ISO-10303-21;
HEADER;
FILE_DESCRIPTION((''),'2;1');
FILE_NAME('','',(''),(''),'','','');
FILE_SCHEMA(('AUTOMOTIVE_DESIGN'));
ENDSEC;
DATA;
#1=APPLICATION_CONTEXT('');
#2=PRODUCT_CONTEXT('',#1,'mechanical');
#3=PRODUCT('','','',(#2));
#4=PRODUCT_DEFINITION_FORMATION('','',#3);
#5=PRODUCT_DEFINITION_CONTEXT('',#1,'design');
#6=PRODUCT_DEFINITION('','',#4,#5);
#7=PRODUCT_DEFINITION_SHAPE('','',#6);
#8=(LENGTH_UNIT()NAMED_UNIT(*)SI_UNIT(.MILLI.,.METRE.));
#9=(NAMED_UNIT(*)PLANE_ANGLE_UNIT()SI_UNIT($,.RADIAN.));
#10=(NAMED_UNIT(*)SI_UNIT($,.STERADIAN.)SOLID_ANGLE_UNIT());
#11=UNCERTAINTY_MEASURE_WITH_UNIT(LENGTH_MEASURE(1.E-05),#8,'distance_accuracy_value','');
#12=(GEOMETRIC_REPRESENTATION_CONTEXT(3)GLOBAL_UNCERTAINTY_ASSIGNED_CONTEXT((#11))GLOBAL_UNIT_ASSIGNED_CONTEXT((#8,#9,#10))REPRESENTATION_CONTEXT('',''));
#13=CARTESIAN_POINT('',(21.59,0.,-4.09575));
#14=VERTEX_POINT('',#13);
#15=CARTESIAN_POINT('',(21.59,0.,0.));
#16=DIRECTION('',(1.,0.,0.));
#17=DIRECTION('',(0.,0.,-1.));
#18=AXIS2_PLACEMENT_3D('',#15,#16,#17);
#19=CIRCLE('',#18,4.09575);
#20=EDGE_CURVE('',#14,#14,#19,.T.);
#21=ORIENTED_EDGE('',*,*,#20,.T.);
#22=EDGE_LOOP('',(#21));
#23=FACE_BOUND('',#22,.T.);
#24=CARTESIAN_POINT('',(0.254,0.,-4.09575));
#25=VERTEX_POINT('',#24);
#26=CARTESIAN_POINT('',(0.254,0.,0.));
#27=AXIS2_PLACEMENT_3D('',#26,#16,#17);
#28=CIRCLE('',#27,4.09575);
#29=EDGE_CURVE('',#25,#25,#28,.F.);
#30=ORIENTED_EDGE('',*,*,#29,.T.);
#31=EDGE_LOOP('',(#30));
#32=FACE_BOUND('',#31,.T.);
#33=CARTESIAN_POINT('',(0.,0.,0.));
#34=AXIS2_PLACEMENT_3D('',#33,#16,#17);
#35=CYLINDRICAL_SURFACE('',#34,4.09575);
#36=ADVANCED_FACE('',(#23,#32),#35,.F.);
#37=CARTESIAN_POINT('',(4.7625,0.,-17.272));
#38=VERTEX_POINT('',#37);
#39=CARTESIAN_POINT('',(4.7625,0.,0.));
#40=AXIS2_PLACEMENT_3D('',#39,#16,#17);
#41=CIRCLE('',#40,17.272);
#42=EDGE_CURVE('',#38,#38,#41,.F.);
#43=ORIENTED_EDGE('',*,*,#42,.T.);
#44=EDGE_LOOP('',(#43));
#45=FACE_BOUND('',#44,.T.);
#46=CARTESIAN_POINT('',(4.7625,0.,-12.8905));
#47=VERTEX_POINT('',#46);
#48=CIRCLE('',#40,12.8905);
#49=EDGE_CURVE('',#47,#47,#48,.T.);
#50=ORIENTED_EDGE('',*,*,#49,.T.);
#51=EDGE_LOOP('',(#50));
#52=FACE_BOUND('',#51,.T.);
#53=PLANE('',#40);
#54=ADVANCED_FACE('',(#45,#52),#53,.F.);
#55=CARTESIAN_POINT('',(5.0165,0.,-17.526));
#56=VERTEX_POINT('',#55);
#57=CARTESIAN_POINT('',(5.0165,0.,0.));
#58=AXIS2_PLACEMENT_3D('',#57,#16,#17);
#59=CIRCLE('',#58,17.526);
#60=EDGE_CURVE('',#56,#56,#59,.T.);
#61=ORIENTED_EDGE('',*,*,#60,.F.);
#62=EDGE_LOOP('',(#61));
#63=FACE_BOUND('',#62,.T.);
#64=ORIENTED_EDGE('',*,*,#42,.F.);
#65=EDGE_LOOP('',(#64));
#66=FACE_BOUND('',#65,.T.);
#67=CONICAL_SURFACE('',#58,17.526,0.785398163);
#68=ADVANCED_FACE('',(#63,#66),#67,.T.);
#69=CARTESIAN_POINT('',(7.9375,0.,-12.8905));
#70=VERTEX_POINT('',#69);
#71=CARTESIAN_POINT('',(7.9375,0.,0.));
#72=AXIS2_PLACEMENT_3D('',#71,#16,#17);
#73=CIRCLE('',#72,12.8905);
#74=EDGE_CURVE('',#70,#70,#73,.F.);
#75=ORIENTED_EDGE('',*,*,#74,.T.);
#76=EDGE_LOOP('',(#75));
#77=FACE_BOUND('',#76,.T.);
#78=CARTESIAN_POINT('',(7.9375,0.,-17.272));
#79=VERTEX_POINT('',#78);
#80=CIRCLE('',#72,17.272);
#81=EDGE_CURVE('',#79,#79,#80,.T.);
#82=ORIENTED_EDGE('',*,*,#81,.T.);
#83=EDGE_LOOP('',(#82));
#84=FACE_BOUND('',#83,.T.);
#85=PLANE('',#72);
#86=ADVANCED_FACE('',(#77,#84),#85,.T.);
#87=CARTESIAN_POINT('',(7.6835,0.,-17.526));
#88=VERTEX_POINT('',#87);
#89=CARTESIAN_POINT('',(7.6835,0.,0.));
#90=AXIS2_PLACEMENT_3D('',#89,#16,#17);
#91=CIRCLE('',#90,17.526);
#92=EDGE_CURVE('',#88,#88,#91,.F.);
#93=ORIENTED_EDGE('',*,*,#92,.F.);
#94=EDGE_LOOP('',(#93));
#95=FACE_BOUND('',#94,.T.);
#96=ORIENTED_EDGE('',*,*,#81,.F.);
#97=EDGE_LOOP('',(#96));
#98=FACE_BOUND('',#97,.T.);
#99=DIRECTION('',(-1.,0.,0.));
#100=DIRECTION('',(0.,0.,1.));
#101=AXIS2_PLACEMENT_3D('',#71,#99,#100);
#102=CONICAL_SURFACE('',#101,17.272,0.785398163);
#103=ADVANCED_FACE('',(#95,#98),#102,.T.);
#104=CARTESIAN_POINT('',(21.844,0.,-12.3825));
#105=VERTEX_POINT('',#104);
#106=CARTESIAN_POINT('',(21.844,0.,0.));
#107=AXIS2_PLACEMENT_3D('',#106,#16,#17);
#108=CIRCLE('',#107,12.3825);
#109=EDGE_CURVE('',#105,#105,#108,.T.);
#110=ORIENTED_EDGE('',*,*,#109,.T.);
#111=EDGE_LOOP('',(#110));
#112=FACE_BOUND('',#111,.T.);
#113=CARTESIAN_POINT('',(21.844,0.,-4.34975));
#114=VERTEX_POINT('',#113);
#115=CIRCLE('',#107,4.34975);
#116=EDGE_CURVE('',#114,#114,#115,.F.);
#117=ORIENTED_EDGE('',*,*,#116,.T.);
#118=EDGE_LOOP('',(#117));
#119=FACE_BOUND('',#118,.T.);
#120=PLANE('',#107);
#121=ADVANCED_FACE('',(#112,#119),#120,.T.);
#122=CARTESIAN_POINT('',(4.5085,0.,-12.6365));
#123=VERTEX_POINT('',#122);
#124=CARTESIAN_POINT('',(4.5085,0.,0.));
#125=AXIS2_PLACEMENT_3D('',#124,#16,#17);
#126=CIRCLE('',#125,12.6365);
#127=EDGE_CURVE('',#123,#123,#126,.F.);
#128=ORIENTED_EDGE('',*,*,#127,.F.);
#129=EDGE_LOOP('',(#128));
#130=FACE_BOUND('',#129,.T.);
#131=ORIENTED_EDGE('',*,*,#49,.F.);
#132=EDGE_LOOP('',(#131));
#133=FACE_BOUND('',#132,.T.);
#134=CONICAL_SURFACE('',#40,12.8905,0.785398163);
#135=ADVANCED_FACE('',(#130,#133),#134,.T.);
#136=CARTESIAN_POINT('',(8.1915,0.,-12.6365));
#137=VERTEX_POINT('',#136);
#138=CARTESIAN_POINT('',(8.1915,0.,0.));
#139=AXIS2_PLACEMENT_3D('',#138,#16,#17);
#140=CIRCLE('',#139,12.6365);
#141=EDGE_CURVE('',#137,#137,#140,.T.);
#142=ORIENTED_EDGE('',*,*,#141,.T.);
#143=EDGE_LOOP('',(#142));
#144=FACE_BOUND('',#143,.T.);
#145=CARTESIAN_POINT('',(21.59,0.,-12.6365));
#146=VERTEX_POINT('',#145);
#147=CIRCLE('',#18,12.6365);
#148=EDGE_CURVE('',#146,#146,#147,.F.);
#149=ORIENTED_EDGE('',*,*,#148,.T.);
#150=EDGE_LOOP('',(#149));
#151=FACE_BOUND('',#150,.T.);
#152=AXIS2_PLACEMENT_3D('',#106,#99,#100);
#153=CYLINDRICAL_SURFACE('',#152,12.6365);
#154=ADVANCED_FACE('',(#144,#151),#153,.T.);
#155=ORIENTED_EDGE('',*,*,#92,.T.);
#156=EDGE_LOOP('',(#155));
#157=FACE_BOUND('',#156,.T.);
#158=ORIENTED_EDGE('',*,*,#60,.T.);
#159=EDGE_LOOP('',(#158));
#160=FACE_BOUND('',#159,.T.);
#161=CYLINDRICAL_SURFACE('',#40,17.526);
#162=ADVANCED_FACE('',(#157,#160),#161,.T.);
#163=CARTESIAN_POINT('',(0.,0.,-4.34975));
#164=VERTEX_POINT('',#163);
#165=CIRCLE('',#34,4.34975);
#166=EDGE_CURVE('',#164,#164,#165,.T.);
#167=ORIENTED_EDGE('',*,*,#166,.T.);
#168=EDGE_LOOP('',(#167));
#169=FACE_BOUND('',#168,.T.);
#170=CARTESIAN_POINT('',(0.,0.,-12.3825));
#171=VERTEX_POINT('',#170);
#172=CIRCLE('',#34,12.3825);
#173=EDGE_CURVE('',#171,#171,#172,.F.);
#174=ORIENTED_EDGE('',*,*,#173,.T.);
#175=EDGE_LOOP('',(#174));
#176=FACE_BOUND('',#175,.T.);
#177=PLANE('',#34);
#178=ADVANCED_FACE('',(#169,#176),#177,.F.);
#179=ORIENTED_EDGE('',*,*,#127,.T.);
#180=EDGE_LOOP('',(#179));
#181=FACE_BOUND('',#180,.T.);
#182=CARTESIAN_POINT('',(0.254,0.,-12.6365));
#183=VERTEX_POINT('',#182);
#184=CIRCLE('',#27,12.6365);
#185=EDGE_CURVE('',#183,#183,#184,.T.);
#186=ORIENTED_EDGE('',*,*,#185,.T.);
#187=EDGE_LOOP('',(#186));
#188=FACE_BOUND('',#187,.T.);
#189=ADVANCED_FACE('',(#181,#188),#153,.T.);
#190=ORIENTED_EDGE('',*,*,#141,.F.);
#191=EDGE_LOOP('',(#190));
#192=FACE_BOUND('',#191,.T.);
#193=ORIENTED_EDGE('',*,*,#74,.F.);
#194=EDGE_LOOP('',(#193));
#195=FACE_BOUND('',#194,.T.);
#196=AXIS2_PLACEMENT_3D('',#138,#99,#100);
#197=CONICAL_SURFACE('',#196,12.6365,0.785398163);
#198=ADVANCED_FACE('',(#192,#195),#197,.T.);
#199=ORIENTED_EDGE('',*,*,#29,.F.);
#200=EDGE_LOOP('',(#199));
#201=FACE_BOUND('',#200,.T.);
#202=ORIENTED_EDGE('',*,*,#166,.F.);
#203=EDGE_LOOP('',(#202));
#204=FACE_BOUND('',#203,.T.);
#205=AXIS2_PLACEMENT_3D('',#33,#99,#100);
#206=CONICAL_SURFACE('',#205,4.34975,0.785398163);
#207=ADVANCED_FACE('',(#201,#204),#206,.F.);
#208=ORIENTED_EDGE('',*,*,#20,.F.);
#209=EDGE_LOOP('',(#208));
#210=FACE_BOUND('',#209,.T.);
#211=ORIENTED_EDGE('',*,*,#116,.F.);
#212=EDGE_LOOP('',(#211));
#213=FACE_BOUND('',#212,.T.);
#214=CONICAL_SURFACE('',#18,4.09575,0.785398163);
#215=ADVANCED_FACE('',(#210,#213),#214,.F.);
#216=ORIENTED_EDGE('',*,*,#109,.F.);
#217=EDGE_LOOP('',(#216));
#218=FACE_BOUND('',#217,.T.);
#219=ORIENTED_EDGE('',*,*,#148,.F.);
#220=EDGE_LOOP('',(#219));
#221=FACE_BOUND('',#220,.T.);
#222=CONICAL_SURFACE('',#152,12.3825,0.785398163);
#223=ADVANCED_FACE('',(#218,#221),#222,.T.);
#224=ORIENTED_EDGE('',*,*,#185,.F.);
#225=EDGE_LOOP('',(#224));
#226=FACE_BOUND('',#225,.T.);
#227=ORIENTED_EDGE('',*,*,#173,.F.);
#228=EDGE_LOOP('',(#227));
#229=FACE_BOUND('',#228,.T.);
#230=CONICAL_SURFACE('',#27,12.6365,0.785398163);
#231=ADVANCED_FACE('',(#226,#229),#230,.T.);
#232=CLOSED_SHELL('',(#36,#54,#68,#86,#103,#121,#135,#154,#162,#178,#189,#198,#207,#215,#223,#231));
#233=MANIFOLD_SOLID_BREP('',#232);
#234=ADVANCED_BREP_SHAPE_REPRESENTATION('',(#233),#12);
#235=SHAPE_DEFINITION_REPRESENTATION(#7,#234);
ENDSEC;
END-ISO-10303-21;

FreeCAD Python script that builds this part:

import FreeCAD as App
import Part
import Sketcher
from FreeCAD import Vector
Q = App.Units.Quantity


def edges_at(feature, points):
    """Names of the edges that pass closest to the given points."""
    edges = feature.Shape.Edges
    near = lambda p: min(range(len(edges)), key=lambda i: edges[i].distToShape(Part.Vertex(*p))[0])
    return sorted({f"Edge{near(p) + 1}" for p in points})

doc = App.newDocument("Part")
params = doc.addObject("Spreadsheet::Sheet", "Params")
for row, (alias, value) in enumerate([
    ("sketch1_diameter", "0.995 in"),
    ("pad1_length", "0.86 in"),
    ("sketch2_diameter", "1.38 in"),
    ("pad2_length", "0.125 in"),
    ("chamfer_size", "0.01 in"),
    ("chamfer2_size", "0.01 in"),
], start=1):
    params.set(f"A{row}", alias)
    params.set(f"B{row}", "=" + value)
    params.setAlias(f"B{row}", alias)

body = doc.addObject("PartDesign::Body", "Body")

sketch1 = doc.addObject("Sketcher::SketchObject", "Sketch")
body.addObject(sketch1)
sketch1.AttachmentSupport = (doc.YZ_Plane, [""])
sketch1.MapMode = "FlatFace"
sketch1.addGeometry(Part.Circle(Vector(0, 0, 0), Vector(0, 0, 1), 13), False)
sketch1.addConstraint(Sketcher.Constraint("Coincident", 0, 3, -1, 1))
sketch1.addConstraint(Sketcher.Constraint("Diameter", 0, Q("0.995 in")))
sketch1.setExpression("Constraints[1]", "Params.sketch1_diameter")
pad1 = doc.addObject("PartDesign::Pad", "Pad")
body.addObject(pad1)
pad1.Profile = sketch1
pad1.setExpression("Length", "Params.pad1_length")

sketch2 = doc.addObject("Sketcher::SketchObject", "Sketch001")
body.addObject(sketch2)
sketch2.AttachmentSupport = (doc.YZ_Plane, [""])
sketch2.MapMode = "FlatFace"
sketch2.AttachmentOffset = App.Placement(Vector(0, 0, 0.3125 * 25.4), App.Rotation())
sketch2.addGeometry(Part.Circle(Vector(0, 0, 0), Vector(0, 0, 1), 18), False)
sketch2.addConstraint(Sketcher.Constraint("Coincident", 0, 3, -1, 1))
sketch2.addConstraint(Sketcher.Constraint("Diameter", 0, Q("1.38 in")))
sketch2.setExpression("Constraints[1]", "Params.sketch2_diameter")
pad2 = doc.addObject("PartDesign::Pad", "Pad001")
body.addObject(pad2)
pad2.Profile = sketch2
pad2.setExpression("Length", "Params.pad2_length")
pad2.Reversed = True
doc.recompute()

chamfer = doc.addObject("PartDesign::Chamfer", "Chamfer")
body.addObject(chamfer)
chamfer.Base = (pad2, edges_at(pad2, [
    (0, 0, 12.636),
    (21.844, 0, 12.636),
    (4.763, 0, 12.636),
    (7.938, 0, 12.636),
    (4.763, 0, 17.526),
    (7.938, 0, 17.526),
]))
chamfer.setExpression("Size", "Params.chamfer_size")

sketch3 = doc.addObject("Sketcher::SketchObject", "Sketch002")
body.addObject(sketch3)
sketch3.AttachmentSupport = (doc.YZ_Plane, [""])
sketch3.MapMode = "FlatFace"
sketch3.AttachmentOffset = App.Placement(Vector(0, 0, 0.86 * 25.4), App.Rotation())
sketch3.addGeometry(Part.Circle(Vector(0, 0, 0), Vector(0, 0, 1), 4.1), False)
sketch3.addConstraint(Sketcher.Constraint("Coincident", 0, 3, -1, 1))
sketch3.addConstraint(Sketcher.Constraint("Diameter", 0, Q("0.3225 in")))
pocket1 = doc.addObject("PartDesign::Pocket", "Pocket")
body.addObject(pocket1)
pocket1.Profile = sketch3
pocket1.Type = "ThroughAll"
doc.recompute()

chamfer2 = doc.addObject("PartDesign::Chamfer", "Chamfer001")
body.addObject(chamfer2)
chamfer2.Base = (pocket1, edges_at(pocket1, [(0, 0, 4.096), (21.844, 0, 4.096)]))
chamfer2.setExpression("Size", "Params.chamfer2_size")

doc.recompute()
